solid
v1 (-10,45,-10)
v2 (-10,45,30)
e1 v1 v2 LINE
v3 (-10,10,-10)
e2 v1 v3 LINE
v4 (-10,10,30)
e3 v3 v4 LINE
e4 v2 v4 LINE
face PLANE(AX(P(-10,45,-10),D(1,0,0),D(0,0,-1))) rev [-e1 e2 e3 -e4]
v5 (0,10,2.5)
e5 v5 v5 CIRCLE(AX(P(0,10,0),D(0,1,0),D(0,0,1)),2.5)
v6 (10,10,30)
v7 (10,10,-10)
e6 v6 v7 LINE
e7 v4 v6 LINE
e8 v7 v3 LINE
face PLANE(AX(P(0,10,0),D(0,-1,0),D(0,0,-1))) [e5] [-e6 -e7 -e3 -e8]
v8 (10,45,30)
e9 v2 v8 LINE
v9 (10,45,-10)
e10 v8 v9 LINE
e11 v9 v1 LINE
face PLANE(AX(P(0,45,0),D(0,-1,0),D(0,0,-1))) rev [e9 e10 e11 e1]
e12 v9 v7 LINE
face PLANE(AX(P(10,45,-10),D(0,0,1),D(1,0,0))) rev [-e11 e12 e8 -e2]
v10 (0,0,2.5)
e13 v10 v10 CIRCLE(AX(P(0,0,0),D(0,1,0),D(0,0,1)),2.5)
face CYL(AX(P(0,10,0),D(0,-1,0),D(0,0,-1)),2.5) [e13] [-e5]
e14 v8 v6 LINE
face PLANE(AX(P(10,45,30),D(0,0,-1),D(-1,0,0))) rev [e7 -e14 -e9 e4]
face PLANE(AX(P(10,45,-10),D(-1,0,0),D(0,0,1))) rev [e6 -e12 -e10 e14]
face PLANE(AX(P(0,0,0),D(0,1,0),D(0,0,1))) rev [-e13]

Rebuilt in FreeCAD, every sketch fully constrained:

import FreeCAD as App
import Part
import Sketcher

doc = App.newDocument("Part")
body = doc.addObject("PartDesign::Body", "Body")

# Sketch on XZ plane
sketch1 = doc.addObject("Sketcher::SketchObject", "Sketch")
body.addObject(sketch1)
sketch1.AttachmentSupport = (doc.XZ_Plane, [""])
sketch1.MapMode = "FlatFace"
sketch1.addGeometry(Part.Circle(App.Vector(0, 0, 0), App.Vector(0, 0, 1), 2.5), False)
sketch1.addConstraint(Sketcher.Constraint("Coincident", 0, 3, -1, 1))
sketch1.addConstraint(Sketcher.Constraint("Diameter", 0, 5.0))
pad1 = doc.addObject("PartDesign::Pad", "Pad")
body.addObject(pad1)
pad1.Profile = sketch1
pad1.Length = 10
pad1.Reversed = True

# Sketch on XZ plane
sketch2 = doc.addObject("Sketcher::SketchObject", "Sketch001")
body.addObject(sketch2)
sketch2.AttachmentSupport = (doc.XZ_Plane, [""])
sketch2.MapMode = "FlatFace"
sketch2.AttachmentOffset = App.Placement(App.Vector(0, 0, -10), App.Rotation())
sketch2.addGeometry(Part.LineSegment(App.Vector(-10, -10, 0), App.Vector(-10, 30, 0)), False)
sketch2.addGeometry(Part.LineSegment(App.Vector(-10, 30, 0), App.Vector(10, 30, 0)), False)
sketch2.addGeometry(Part.LineSegment(App.Vector(10, 30, 0), App.Vector(10, -10, 0)), False)
sketch2.addGeometry(Part.LineSegment(App.Vector(10, -10, 0), App.Vector(-10, -10, 0)), False)
sketch2.addConstraint(Sketcher.Constraint("Coincident", 0, 2, 1, 1))
sketch2.addConstraint(Sketcher.Constraint("Coincident", 1, 2, 2, 1))
sketch2.addConstraint(Sketcher.Constraint("Coincident", 2, 2, 3, 1))
sketch2.addConstraint(Sketcher.Constraint("Coincident", 3, 2, 0, 1))
sketch2.addConstraint(Sketcher.Constraint("Vertical", 0))
sketch2.addConstraint(Sketcher.Constraint("Horizontal", 1))
sketch2.addConstraint(Sketcher.Constraint("Vertical", 2))
sketch2.addConstraint(Sketcher.Constraint("Horizontal", 3))
sketch2.addConstraint(Sketcher.Constraint("DistanceX", 1, 1, 1, 2, 20.0))
sketch2.addConstraint(Sketcher.Constraint("DistanceY", 0, 1, 0, 2, 40.0))
sketch2.addConstraint(Sketcher.Constraint("DistanceX", 0, 2, -1, 1, 10.0))
sketch2.addConstraint(Sketcher.Constraint("DistanceY", -1, 1, 0, 2, 30.0))
pad2 = doc.addObject("PartDesign::Pad", "Pad001")
body.addObject(pad2)
pad2.Profile = sketch2
pad2.Length = 35
pad2.Reversed = True

doc.recompute()
